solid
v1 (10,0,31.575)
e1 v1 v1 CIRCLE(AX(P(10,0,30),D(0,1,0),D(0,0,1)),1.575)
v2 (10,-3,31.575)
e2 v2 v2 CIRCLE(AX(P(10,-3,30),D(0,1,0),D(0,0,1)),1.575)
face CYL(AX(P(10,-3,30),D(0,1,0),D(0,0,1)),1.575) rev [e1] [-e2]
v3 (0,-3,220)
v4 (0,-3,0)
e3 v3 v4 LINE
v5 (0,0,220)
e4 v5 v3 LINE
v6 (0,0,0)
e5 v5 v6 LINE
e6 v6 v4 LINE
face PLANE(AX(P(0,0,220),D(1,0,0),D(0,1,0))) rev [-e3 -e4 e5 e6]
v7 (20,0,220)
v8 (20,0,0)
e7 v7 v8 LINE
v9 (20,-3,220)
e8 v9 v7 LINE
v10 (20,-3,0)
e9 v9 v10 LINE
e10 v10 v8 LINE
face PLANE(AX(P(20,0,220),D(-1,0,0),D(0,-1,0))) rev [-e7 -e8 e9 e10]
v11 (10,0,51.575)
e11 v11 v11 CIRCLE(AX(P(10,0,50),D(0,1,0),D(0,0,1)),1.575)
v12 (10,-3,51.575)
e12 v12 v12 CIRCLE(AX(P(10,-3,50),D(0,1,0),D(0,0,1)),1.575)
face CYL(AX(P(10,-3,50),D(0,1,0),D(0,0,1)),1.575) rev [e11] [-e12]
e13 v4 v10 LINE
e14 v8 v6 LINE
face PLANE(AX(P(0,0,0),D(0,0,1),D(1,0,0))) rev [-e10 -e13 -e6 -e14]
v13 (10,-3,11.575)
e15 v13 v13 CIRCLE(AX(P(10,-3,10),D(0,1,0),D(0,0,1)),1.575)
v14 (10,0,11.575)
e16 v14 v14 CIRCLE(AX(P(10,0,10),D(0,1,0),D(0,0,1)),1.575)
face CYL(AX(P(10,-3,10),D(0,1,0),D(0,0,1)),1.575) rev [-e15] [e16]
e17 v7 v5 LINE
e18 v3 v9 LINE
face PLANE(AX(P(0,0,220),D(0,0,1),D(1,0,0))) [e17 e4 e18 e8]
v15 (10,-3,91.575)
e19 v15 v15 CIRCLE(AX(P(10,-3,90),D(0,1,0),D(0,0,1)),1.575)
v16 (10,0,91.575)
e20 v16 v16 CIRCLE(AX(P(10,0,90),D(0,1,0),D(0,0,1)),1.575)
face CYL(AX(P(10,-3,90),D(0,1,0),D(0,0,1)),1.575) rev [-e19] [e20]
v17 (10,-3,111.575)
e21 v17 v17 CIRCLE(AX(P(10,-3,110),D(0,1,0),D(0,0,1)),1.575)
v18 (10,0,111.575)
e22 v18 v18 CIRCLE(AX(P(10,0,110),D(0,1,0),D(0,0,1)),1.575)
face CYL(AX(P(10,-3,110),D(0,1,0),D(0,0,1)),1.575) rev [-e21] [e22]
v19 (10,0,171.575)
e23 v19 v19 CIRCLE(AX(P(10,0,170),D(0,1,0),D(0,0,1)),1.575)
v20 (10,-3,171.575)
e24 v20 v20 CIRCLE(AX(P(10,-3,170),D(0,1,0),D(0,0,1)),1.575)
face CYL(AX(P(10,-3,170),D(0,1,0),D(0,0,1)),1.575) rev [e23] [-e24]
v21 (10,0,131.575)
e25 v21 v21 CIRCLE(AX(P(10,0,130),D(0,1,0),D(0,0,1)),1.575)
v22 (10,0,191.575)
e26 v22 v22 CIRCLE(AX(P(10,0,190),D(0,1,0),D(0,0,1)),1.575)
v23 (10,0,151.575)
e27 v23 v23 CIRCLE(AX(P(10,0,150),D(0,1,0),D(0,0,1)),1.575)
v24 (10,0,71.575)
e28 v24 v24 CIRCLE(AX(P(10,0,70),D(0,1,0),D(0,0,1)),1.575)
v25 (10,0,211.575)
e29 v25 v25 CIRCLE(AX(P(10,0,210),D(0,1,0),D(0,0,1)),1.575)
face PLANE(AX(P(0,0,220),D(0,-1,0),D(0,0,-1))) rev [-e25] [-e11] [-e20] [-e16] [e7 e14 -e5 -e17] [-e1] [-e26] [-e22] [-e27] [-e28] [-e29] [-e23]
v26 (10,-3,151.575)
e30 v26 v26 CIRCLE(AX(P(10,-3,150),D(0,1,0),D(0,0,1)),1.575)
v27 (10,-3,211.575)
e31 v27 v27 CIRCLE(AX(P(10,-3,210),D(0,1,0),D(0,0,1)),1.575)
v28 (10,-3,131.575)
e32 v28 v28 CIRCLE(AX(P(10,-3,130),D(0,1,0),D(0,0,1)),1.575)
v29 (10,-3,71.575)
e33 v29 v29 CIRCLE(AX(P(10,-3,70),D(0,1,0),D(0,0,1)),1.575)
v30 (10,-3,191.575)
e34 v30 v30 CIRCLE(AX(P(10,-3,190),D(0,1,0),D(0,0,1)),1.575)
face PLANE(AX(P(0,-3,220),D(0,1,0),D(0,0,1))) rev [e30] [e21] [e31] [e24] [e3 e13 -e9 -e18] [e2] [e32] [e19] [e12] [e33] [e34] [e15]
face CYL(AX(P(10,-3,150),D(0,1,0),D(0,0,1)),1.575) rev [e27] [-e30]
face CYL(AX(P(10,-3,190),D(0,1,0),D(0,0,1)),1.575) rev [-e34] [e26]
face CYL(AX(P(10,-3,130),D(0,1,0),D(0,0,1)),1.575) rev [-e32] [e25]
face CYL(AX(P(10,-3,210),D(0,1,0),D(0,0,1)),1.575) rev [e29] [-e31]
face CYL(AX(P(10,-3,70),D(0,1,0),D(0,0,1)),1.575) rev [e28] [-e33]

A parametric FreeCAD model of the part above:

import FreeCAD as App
import Part
import Sketcher

V = App.Vector
Q = App.Units.Quantity


def add_polygon(sketch, points):
    """Adds a closed chain of lines whose ends are joined by coincident constraints."""
    first, n = sketch.GeometryCount, len(points)
    for a, b in zip(points, points[1:] + points[:1]):
        sketch.addGeometry(Part.LineSegment(App.Vector(*a, 0), App.Vector(*b, 0)), False)
    for i in range(n):
        sketch.addConstraint(Sketcher.Constraint("Coincident", first + i, 2, first + (i + 1) % n, 1))

doc = App.newDocument("Part")
body = doc.addObject("PartDesign::Body", "Body")

# Sketch on XY plane
sketch1 = doc.addObject("Sketcher::SketchObject", "Sketch")
body.addObject(sketch1)
sketch1.AttachmentSupport = (doc.XY_Plane, [""])
sketch1.MapMode = "FlatFace"
add_polygon(sketch1, [(0, 0), (0, -3), (20, -3), (20, 0)])  # lines 0-3
sketch1.addConstraint([
    Sketcher.Constraint("Vertical", 0),
    Sketcher.Constraint("Horizontal", 1),
    Sketcher.Constraint("Vertical", 2),
    Sketcher.Constraint("Horizontal", 3),
    Sketcher.Constraint("Coincident", 3, 2, -1, 1),
    Sketcher.Constraint("DistanceX", 1, 1, 1, 2, Q("20 mm")),
    Sketcher.Constraint("DistanceY", 0, 2, 0, 1, Q("3 mm")),
])
pad1 = doc.addObject("PartDesign::Pad", "Pad")
body.addObject(pad1)
pad1.Profile = sketch1
pad1.Length = 220

# Sketch on XZ plane
sketch2 = doc.addObject("Sketcher::SketchObject", "Sketch001")
body.addObject(sketch2)
sketch2.AttachmentSupport = (doc.XZ_Plane, [""])
sketch2.MapMode = "FlatFace"
sketch2.addGeometry([
    Part.Circle(V(10, 10, 0), V(0, 0, 1), 1.6),  # 0
    Part.Circle(V(10, 30, 0), V(0, 0, 1), 1.6),  # 1
    Part.Circle(V(10, 50, 0), V(0, 0, 1), 1.6),  # 2
    Part.Circle(V(10, 70, 0), V(0, 0, 1), 1.6),  # 3
    Part.Circle(V(10, 90, 0), V(0, 0, 1), 1.6),  # 4
    Part.Circle(V(10, 110, 0), V(0, 0, 1), 1.6),  # 5
    Part.Circle(V(10, 130, 0), V(0, 0, 1), 1.6),  # 6
    Part.Circle(V(10, 150, 0), V(0, 0, 1), 1.6),  # 7
    Part.Circle(V(10, 170, 0), V(0, 0, 1), 1.6),  # 8
    Part.Circle(V(10, 190, 0), V(0, 0, 1), 1.6),  # 9
    Part.Circle(V(10, 210, 0), V(0, 0, 1), 1.6),  # 10
    Part.Circle(V(10, 230, 0), V(0, 0, 1), 1.6),  # 11
    Part.Circle(V(10, 250, 0), V(0, 0, 1), 1.6),  # 12
    Part.Circle(V(10, 270, 0), V(0, 0, 1), 1.6),  # 13
    Part.Circle(V(10, 290, 0), V(0, 0, 1), 1.6),  # 14
    Part.Circle(V(10, 310, 0), V(0, 0, 1), 1.6),  # 15
    Part.Circle(V(10, 330, 0), V(0, 0, 1), 1.6),  # 16
    Part.Circle(V(10, 350, 0), V(0, 0, 1), 1.6),  # 17
    Part.Circle(V(10, 370, 0), V(0, 0, 1), 1.6),  # 18
    Part.Circle(V(10, 390, 0), V(0, 0, 1), 1.6),  # 19
    Part.Circle(V(10, 410, 0), V(0, 0, 1), 1.6),  # 20
    Part.Circle(V(10, 430, 0), V(0, 0, 1), 1.6),  # 21
    Part.Circle(V(10, 450, 0), V(0, 0, 1), 1.6),  # 22
    Part.Circle(V(10, 470, 0), V(0, 0, 1), 1.6),  # 23
    Part.Circle(V(10, 490, 0), V(0, 0, 1), 1.6),  # 24
    Part.Circle(V(10, 510, 0), V(0, 0, 1), 1.6),  # 25
    Part.Circle(V(10, 530, 0), V(0, 0, 1), 1.6),  # 26
    Part.Circle(V(10, 550, 0), V(0, 0, 1), 1.6),  # 27
    Part.Circle(V(10, 570, 0), V(0, 0, 1), 1.6),  # 28
    Part.Circle(V(10, 590, 0), V(0, 0, 1), 1.6),  # 29
    Part.Circle(V(10, 610, 0), V(0, 0, 1), 1.6),  # 30
    Part.Circle(V(10, 630, 0), V(0, 0, 1), 1.6),  # 31
    Part.Circle(V(10, 650, 0), V(0, 0, 1), 1.6),  # 32
], False)
sketch2.addConstraint([
    Sketcher.Constraint("Equal", 0, 1),
    Sketcher.Constraint("Equal", 1, 2),
    Sketcher.Constraint("Equal", 2, 3),
    Sketcher.Constraint("Equal", 3, 4),
    Sketcher.Constraint("Equal", 4, 5),
    Sketcher.Constraint("Equal", 5, 6),
    Sketcher.Constraint("Equal", 6, 7),
    Sketcher.Constraint("Equal", 7, 8),
    Sketcher.Constraint("Equal", 8, 9),
    Sketcher.Constraint("Equal", 9, 10),
    Sketcher.Constraint("Equal", 10, 11),
    Sketcher.Constraint("Equal", 11, 12),
    Sketcher.Constraint("Equal", 12, 13),
    Sketcher.Constraint("Equal", 13, 14),
    Sketcher.Constraint("Equal", 14, 15),
    Sketcher.Constraint("Equal", 15, 16),
    Sketcher.Constraint("Equal", 16, 17),
    Sketcher.Constraint("Equal", 17, 18),
    Sketcher.Constraint("Equal", 18, 19),
    Sketcher.Constraint("Equal", 19, 20),
    Sketcher.Constraint("Equal", 20, 21),
    Sketcher.Constraint("Equal", 21, 22),
    Sketcher.Constraint("Equal", 22, 23),
    Sketcher.Constraint("Equal", 23, 24),
    Sketcher.Constraint("Equal", 24, 25),
    Sketcher.Constraint("Equal", 25, 26),
    Sketcher.Constraint("Equal", 26, 27),
    Sketcher.Constraint("Equal", 27, 28),
    Sketcher.Constraint("Equal", 28, 29),
    Sketcher.Constraint("Equal", 29, 30),
    Sketcher.Constraint("Equal", 30, 31),
    Sketcher.Constraint("Equal", 31, 32),
    Sketcher.Constraint("Vertical", 0, 3, 1, 3),
    Sketcher.Constraint("Vertical", 1, 3, 2, 3),
    Sketcher.Constraint("Vertical", 2, 3, 3, 3),
    Sketcher.Constraint("Vertical", 3, 3, 4, 3),
    Sketcher.Constraint("Vertical", 4, 3, 5, 3),
    Sketcher.Constraint("Vertical", 5, 3, 6, 3),
    Sketcher.Constraint("Vertical", 6, 3, 7, 3),
    Sketcher.Constraint("Vertical", 7, 3, 8, 3),
    Sketcher.Constraint("Vertical", 8, 3, 9, 3),
    Sketcher.Constraint("Vertical", 9, 3, 10, 3),
    Sketcher.Constraint("Vertical", 10, 3, 11, 3),
    Sketcher.Constraint("Vertical", 11, 3, 12, 3),
    Sketcher.Constraint("Vertical", 12, 3, 13, 3),
    Sketcher.Constraint("Vertical", 13, 3, 14, 3),
    Sketcher.Constraint("Vertical", 14, 3, 15, 3),
    Sketcher.Constraint("Vertical", 15, 3, 16, 3),
    Sketcher.Constraint("Vertical", 16, 3, 17, 3),
    Sketcher.Constraint("Vertical", 17, 3, 18, 3),
    Sketcher.Constraint("Vertical", 18, 3, 19, 3),
    Sketcher.Constraint("Vertical", 19, 3, 20, 3),
    Sketcher.Constraint("Vertical", 20, 3, 21, 3),
    Sketcher.Constraint("Vertical", 21, 3, 22, 3),
    Sketcher.Constraint("Vertical", 22, 3, 23, 3),
    Sketcher.Constraint("Vertical", 23, 3, 24, 3),
    Sketcher.Constraint("Vertical", 24, 3, 25, 3),
    Sketcher.Constraint("Vertical", 25, 3, 26, 3),
    Sketcher.Constraint("Vertical", 26, 3, 27, 3),
    Sketcher.Constraint("Vertical", 27, 3, 28, 3),
    Sketcher.Constraint("Vertical", 28, 3, 29, 3),
    Sketcher.Constraint("Vertical", 29, 3, 30, 3),
    Sketcher.Constraint("Vertical", 30, 3, 31, 3),
    Sketcher.Constraint("Vertical", 31, 3, 32, 3),
    Sketcher.Constraint("Diameter", 0, Q("3.15 mm")),
    Sketcher.Constraint("DistanceX", -1, 1, 0, 3, Q("10 mm")),
    Sketcher.Constraint("DistanceY", -1, 1, 0, 3, Q("10 mm")),
    Sketcher.Constraint("DistanceY", -1, 1, 1, 3, Q("30 mm")),
    Sketcher.Constraint("DistanceY", -1, 1, 2, 3, Q("50 mm")),
    Sketcher.Constraint("DistanceY", -1, 1, 3, 3, Q("70 mm")),
    Sketcher.Constraint("DistanceY", -1, 1, 4, 3, Q("90 mm")),
    Sketcher.Constraint("DistanceY", -1, 1, 5, 3, Q("110 mm")),
    Sketcher.Constraint("DistanceY", -1, 1, 6, 3, Q("130 mm")),
    Sketcher.Constraint("DistanceY", -1, 1, 7, 3, Q("150 mm")),
    Sketcher.Constraint("DistanceY", -1, 1, 8, 3, Q("170 mm")),
    Sketcher.Constraint("DistanceY", -1, 1, 9, 3, Q("190 mm")),
    Sketcher.Constraint("DistanceY", -1, 1, 10, 3, Q("210 mm")),
    Sketcher.Constraint("DistanceY", -1, 1, 11, 3, Q("230 mm")),
    Sketcher.Constraint("DistanceY", -1, 1, 12, 3, Q("250 mm")),
    Sketcher.Constraint("DistanceY", -1, 1, 13, 3, Q("270 mm")),
    Sketcher.Constraint("DistanceY", -1, 1, 14, 3, Q("290 mm")),
    Sketcher.Constraint("DistanceY", -1, 1, 15, 3, Q("310 mm")),
    Sketcher.Constraint("DistanceY", -1, 1, 16, 3, Q("330 mm")),
    Sketcher.Constraint("DistanceY", -1, 1, 17, 3, Q("350 mm")),
    Sketcher.Constraint("DistanceY", -1, 1, 18, 3, Q("370 mm")),
    Sketcher.Constraint("DistanceY", -1, 1, 19, 3, Q("390 mm")),
    Sketcher.Constraint("DistanceY", -1, 1, 20, 3, Q("410 mm")),
    Sketcher.Constraint("DistanceY", -1, 1, 21, 3, Q("430 mm")),
    Sketcher.Constraint("DistanceY", -1, 1, 22, 3, Q("450 mm")),
    Sketcher.Constraint("DistanceY", -1, 1, 23, 3, Q("470 mm")),
    Sketcher.Constraint("DistanceY", -1, 1, 24, 3, Q("490 mm")),
    Sketcher.Constraint("DistanceY", -1, 1, 25, 3, Q("510 mm")),
    Sketcher.Constraint("DistanceY", -1, 1, 26, 3, Q("530 mm")),
    Sketcher.Constraint("DistanceY", -1, 1, 27, 3, Q("550 mm")),
    Sketcher.Constraint("DistanceY", -1, 1, 28, 3, Q("570 mm")),
    Sketcher.Constraint("DistanceY", -1, 1, 29, 3, Q("590 mm")),
    Sketcher.Constraint("DistanceY", -1, 1, 30, 3, Q("610 mm")),
    Sketcher.Constraint("DistanceY", -1, 1, 31, 3, Q("630 mm")),
    Sketcher.Constraint("DistanceY", -1, 1, 32, 3, Q("650 mm")),
])
pocket1 = doc.addObject("PartDesign::Pocket", "Pocket")
body.addObject(pocket1)
pocket1.Profile = sketch2
pocket1.Type = "ThroughAll"
pocket1.Reversed = True

doc.recompute()
